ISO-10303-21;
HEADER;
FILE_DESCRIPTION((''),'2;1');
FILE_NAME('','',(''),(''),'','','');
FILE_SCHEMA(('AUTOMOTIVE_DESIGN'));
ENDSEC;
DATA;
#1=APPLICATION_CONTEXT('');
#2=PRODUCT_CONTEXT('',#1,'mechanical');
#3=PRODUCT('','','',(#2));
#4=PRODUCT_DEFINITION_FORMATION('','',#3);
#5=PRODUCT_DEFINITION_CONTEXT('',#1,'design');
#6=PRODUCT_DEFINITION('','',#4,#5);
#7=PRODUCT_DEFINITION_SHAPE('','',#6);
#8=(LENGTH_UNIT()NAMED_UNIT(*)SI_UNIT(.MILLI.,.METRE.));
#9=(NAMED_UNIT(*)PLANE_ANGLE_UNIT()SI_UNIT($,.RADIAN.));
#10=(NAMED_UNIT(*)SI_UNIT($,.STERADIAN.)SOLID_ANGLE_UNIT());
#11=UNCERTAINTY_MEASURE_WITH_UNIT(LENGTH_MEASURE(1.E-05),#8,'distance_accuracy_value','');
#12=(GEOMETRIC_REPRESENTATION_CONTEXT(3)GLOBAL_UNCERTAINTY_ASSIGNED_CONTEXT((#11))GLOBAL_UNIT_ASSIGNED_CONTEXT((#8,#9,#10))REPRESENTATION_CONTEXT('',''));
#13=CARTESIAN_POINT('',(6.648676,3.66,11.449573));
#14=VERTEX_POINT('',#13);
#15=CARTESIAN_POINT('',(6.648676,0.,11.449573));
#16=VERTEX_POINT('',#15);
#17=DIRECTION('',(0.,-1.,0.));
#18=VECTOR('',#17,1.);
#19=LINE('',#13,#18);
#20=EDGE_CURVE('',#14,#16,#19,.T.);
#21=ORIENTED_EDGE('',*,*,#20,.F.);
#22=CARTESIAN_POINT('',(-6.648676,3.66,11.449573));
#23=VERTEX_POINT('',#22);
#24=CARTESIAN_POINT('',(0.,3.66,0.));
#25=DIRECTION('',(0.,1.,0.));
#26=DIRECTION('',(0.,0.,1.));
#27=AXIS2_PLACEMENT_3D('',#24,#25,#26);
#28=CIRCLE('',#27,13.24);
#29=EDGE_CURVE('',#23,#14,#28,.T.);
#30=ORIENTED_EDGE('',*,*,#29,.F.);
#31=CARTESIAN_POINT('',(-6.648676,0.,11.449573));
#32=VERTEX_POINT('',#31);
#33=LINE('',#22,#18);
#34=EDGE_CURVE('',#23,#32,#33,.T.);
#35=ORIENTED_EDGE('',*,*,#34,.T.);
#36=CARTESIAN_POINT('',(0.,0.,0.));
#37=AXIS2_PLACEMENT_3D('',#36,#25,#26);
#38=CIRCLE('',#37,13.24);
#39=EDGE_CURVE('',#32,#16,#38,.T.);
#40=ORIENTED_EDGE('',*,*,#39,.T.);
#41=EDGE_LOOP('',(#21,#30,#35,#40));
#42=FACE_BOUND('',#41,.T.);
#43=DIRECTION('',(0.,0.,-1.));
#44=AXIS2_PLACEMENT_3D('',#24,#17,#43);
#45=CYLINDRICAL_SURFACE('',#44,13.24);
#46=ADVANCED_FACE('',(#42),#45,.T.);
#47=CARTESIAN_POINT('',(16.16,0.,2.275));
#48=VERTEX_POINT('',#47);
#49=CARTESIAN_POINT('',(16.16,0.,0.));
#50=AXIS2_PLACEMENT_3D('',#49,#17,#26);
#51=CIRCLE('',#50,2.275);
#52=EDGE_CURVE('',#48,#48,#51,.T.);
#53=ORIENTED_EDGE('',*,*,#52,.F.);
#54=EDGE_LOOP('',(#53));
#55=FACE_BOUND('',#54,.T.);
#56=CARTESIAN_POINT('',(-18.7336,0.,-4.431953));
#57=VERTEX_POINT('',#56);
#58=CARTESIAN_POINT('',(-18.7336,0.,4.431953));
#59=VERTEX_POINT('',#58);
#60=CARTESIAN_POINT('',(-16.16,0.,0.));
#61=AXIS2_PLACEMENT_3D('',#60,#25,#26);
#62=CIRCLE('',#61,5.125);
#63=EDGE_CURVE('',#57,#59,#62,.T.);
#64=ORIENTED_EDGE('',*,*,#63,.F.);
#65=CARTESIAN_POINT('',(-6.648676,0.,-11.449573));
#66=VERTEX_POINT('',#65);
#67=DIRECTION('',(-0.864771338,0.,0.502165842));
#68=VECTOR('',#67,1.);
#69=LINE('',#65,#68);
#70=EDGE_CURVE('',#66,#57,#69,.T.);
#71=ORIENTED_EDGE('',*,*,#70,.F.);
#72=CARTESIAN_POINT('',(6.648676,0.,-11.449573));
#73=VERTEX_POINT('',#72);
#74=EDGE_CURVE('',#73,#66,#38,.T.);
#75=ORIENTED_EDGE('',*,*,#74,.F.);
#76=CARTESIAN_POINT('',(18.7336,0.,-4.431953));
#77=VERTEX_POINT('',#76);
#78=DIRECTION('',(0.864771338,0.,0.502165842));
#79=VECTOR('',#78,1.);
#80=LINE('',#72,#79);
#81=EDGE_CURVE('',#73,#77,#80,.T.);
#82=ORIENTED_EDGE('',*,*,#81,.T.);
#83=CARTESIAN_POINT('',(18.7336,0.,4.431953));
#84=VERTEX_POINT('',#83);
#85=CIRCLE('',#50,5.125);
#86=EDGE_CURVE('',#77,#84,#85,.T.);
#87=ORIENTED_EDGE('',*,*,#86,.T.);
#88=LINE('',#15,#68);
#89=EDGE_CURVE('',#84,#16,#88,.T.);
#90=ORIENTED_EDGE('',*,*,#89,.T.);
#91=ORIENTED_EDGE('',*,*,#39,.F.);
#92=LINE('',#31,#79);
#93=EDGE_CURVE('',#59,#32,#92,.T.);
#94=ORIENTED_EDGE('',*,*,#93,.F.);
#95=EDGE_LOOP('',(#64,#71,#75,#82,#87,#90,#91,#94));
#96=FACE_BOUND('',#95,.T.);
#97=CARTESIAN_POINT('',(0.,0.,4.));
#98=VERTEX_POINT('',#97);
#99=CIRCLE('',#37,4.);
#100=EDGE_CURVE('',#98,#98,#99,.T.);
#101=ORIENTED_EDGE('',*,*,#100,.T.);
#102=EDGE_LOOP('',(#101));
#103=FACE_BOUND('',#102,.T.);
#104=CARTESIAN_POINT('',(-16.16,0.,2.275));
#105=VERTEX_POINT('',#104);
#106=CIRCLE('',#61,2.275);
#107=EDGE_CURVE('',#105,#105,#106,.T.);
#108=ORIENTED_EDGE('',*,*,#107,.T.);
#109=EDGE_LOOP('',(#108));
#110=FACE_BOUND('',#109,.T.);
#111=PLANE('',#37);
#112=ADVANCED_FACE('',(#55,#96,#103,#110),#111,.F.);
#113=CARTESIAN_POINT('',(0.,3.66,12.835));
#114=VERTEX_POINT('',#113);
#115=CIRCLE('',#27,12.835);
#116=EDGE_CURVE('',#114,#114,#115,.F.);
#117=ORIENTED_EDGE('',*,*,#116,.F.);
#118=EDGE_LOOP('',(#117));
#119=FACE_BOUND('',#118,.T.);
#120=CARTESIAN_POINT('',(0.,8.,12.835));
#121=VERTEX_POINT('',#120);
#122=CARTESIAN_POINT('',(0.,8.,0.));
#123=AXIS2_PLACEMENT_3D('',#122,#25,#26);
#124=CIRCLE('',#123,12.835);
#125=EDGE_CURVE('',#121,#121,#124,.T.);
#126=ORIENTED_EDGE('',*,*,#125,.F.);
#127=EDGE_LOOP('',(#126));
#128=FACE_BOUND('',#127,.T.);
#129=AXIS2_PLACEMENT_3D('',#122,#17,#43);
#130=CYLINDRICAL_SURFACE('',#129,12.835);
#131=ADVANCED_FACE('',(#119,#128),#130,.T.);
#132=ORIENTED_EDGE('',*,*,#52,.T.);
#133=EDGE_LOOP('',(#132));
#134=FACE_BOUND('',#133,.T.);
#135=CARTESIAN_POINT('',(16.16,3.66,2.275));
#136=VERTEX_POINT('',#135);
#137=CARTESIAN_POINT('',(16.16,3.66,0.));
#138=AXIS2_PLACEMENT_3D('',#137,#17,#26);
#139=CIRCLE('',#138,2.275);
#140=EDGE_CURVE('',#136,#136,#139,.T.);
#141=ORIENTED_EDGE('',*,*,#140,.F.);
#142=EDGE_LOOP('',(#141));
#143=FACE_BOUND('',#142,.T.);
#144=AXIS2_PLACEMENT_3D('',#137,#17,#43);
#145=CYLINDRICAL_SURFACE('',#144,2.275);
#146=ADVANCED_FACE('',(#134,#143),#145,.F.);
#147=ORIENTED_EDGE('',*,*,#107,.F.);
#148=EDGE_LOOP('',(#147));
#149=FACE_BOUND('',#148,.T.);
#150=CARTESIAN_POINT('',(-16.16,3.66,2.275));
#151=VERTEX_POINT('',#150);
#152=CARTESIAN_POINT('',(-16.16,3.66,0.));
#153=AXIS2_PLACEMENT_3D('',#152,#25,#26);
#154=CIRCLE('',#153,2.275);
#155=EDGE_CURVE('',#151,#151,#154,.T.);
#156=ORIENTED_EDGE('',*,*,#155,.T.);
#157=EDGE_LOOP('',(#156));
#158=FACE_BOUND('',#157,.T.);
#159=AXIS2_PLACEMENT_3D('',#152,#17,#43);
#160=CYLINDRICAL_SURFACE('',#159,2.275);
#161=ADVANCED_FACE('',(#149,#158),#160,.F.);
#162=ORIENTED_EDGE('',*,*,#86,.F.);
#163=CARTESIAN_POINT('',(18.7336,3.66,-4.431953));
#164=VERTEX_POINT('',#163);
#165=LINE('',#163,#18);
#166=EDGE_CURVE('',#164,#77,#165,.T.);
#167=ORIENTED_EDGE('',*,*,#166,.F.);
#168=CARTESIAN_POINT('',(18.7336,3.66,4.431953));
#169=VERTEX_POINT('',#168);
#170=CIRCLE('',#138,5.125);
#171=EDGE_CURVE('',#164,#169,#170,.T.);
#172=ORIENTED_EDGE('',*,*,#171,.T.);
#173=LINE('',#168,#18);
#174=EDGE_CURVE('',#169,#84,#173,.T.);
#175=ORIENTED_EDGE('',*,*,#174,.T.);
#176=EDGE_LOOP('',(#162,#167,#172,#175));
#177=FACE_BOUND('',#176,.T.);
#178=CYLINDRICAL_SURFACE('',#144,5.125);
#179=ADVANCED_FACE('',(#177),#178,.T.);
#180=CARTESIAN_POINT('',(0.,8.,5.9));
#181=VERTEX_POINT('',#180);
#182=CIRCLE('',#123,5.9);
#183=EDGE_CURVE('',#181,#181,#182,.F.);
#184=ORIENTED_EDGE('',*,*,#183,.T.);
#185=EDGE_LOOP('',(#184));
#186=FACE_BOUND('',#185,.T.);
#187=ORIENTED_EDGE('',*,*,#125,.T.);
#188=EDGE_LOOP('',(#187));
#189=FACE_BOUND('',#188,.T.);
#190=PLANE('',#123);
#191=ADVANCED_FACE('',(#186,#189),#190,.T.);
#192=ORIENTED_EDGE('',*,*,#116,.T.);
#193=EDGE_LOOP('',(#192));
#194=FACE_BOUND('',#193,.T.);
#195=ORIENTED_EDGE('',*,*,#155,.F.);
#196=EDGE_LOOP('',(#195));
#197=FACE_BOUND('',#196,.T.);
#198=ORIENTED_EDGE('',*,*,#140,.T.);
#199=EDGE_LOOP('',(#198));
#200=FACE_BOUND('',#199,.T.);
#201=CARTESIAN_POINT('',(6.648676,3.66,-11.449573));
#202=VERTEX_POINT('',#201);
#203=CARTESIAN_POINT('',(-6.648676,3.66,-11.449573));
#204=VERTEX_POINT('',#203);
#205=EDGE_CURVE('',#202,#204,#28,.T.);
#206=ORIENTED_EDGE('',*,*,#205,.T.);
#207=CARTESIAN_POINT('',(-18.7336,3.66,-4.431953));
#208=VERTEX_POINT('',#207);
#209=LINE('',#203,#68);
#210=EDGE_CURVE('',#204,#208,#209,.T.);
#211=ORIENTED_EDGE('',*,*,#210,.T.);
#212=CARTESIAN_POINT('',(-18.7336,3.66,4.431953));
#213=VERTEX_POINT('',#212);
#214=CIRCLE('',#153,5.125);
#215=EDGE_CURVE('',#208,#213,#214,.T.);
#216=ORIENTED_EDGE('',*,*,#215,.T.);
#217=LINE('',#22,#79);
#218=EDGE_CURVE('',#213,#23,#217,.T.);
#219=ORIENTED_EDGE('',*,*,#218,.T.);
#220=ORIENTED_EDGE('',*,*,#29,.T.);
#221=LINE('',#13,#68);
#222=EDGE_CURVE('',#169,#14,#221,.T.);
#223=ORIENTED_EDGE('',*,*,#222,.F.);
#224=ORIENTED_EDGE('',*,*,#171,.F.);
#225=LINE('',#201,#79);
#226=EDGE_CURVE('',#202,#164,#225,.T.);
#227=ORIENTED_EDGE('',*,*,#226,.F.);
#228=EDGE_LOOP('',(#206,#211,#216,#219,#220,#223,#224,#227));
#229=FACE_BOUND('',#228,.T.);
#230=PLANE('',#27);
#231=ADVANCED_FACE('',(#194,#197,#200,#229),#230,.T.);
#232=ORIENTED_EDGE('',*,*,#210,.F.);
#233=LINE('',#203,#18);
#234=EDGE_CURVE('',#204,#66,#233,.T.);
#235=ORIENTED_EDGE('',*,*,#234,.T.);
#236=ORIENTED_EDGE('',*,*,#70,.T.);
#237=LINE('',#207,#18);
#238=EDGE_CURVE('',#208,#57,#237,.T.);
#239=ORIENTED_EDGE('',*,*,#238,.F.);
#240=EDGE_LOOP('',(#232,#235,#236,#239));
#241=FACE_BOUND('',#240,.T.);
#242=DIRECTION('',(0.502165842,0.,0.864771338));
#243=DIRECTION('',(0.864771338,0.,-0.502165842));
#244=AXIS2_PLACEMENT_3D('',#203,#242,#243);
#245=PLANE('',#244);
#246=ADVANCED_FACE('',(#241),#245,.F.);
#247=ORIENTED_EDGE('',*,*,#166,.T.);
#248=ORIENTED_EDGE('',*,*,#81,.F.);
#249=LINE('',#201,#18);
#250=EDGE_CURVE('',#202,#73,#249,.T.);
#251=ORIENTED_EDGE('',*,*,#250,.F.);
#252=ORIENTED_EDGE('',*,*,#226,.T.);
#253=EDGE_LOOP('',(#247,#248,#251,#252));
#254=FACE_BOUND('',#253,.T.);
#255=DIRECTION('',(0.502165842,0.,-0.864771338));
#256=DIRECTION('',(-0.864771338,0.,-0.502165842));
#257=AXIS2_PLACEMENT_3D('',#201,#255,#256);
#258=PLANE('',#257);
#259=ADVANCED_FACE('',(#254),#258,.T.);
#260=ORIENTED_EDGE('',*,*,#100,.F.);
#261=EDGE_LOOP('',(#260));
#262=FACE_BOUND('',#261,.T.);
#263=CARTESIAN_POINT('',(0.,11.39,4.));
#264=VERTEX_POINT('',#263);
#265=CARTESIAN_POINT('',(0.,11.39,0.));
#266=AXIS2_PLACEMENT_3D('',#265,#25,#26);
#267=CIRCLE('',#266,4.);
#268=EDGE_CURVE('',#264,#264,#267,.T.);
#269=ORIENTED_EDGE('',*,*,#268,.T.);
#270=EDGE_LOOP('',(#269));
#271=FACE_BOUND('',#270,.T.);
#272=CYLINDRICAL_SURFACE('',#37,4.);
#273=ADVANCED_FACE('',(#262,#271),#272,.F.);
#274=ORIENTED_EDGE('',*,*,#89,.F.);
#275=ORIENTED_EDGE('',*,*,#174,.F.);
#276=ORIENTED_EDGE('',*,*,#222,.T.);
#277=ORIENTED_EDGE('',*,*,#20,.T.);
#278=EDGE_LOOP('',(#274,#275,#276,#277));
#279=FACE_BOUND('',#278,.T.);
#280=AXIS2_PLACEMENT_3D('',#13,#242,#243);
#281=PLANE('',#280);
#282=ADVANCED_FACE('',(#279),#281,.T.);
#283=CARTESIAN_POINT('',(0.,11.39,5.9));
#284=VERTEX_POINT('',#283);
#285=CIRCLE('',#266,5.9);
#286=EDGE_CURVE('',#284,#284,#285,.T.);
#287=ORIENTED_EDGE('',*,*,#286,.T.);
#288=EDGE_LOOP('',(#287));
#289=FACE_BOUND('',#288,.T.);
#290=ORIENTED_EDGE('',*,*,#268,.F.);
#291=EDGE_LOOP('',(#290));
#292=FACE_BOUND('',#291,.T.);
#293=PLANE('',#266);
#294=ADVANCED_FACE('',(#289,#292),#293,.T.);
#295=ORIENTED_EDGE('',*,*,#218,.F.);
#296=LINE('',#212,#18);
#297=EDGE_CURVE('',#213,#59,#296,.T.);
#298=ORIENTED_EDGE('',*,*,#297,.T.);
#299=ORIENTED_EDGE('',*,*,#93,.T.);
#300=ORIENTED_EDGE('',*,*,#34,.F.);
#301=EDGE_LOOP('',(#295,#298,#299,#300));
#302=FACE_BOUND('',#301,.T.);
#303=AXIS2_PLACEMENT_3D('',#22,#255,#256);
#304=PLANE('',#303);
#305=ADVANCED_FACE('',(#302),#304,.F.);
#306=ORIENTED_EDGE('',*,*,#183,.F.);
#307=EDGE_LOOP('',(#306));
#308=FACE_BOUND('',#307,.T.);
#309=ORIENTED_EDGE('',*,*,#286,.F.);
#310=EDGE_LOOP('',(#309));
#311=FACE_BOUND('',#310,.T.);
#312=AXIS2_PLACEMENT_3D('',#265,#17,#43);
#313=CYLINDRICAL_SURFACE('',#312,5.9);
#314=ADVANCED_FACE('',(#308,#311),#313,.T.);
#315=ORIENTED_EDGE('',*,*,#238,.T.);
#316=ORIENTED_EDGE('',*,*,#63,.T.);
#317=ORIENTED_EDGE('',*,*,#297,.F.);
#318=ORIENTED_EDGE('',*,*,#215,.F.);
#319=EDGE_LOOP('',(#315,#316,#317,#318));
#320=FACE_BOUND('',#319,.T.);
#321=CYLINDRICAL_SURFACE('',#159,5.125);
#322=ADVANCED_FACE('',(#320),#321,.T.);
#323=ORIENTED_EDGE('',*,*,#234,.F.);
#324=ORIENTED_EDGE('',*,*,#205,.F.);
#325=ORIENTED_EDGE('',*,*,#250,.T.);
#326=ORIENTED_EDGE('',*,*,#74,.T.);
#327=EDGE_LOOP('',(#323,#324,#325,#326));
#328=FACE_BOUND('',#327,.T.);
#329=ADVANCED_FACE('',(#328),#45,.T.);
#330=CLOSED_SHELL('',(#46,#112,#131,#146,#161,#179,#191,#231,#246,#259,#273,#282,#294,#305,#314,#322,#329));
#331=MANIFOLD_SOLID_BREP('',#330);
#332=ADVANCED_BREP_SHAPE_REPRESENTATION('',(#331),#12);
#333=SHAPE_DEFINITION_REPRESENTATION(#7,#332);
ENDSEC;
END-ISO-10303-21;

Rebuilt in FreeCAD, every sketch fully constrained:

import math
import FreeCAD as App
import Part
import Sketcher

V = App.Vector

doc = App.newDocument("Part")
body = doc.addObject("PartDesign::Body", "Body")

# Sketch on XZ plane
sketch1 = body.newObject("Sketcher::SketchObject", "Sketch")
sketch1.AttachmentSupport = (doc.getObject("XZ_Plane"), [""])
sketch1.MapMode = "FlatFace"
sketch1.addGeometry(Part.LineSegment(V(-6.648676, -11.449573, 0), V(-18.7336, -4.431953, 0)), False)
sketch1.addGeometry(Part.ArcOfCircle(Part.Circle(V(-16.16, 0, 0), V(0, 0, 1), 5.125), math.radians(120.143395), math.radians(239.856605)), False)
sketch1.addGeometry(Part.LineSegment(V(-18.7336, 4.431953, 0), V(-6.648676, 11.449573, 0)), False)
sketch1.addGeometry(Part.ArcOfCircle(Part.Circle(V(0, 0, 0), V(0, 0, 1), 13.24), math.radians(90), math.radians(120.143395)), False)
sketch1.addGeometry(Part.LineSegment(V(0, 13.24, 0), V(0, -13.24, 0)), False)
sketch1.addGeometry(Part.ArcOfCircle(Part.Circle(V(0, 0, 0), V(0, 0, 1), 13.24), math.radians(-120.143395), math.radians(-90)), False)
sketch1.addGeometry(Part.Circle(V(-16.16, 0, 0), V(0, 0, 1), 2.275), False)
sketch1.addConstraint(Sketcher.Constraint("Tangent", 0, 2, 1, 2))
sketch1.addConstraint(Sketcher.Constraint("Tangent", 1, 1, 2, 1))
sketch1.addConstraint(Sketcher.Constraint("Tangent", 2, 2, 3, 2))
sketch1.addConstraint(Sketcher.Constraint("Coincident", 3, 1, 4, 1))
sketch1.addConstraint(Sketcher.Constraint("Coincident", 4, 2, 5, 2))
sketch1.addConstraint(Sketcher.Constraint("Tangent", 5, 1, 0, 1))
sketch1.addConstraint(Sketcher.Constraint("Vertical", 4))
sketch1.addConstraint(Sketcher.Constraint("Coincident", 3, 3, -1, 1))
sketch1.addConstraint(Sketcher.Constraint("Coincident", 5, 3, -1, 1))
sketch1.addConstraint(Sketcher.Constraint("Coincident", 6, 3, 1, 3))
sketch1.addConstraint(Sketcher.Constraint("Equal", 3, 5))
sketch1.addConstraint(Sketcher.Constraint("PointOnObject", 1, 3, -1))
sketch1.addConstraint(Sketcher.Constraint("PointOnObject", 3, 1, -2))
sketch1.addConstraint(Sketcher.Constraint("Diameter", 6, 4.55))
sketch1.addConstraint(Sketcher.Constraint("Radius", 3, 13.24))
sketch1.addConstraint(Sketcher.Constraint("Radius", 1, 5.125))
sketch1.addConstraint(Sketcher.Constraint("DistanceX", 1, 3, -1, 1, 16.16))
pad1 = body.newObject("PartDesign::Pad", "Pad")
pad1.Profile = sketch1
pad1.Length = 3.66
pad1.Reversed = True
doc.recompute()

mirrored = body.newObject("PartDesign::Mirrored", "Mirrored")
mirrored.Originals = [pad1]
mirrored.MirrorPlane = (doc.getObject("YZ_Plane"), [""])
body.Tip = mirrored

# Sketch on XZ plane
sketch2 = body.newObject("Sketcher::SketchObject", "Sketch001")
sketch2.AttachmentSupport = (doc.getObject("XZ_Plane"), [""])
sketch2.MapMode = "FlatFace"
sketch2.addGeometry(Part.Circle(V(0, 0, 0), V(0, 0, 1), 12.835), False)
sketch2.addConstraint(Sketcher.Constraint("Coincident", 0, 3, -1, 1))
sketch2.addConstraint(Sketcher.Constraint("Diameter", 0, 25.67))
pad2 = body.newObject("PartDesign::Pad", "Pad001")
pad2.Profile = sketch2
pad2.Length = 8
pad2.Reversed = True

# Sketch on XZ plane
sketch3 = body.newObject("Sketcher::SketchObject", "Sketch002")
sketch3.AttachmentSupport = (doc.getObject("XZ_Plane"), [""])
sketch3.MapMode = "FlatFace"
sketch3.addGeometry(Part.Circle(V(0, 0, 0), V(0, 0, 1), 5.9), False)
sketch3.addConstraint(Sketcher.Constraint("Coincident", 0, 3, -1, 1))
sketch3.addConstraint(Sketcher.Constraint("Diameter", 0, 11.8))
pad3 = body.newObject("PartDesign::Pad", "Pad002")
pad3.Profile = sketch3
pad3.Length = 11.39
pad3.Reversed = True

# Sketch on XZ plane
sketch4 = body.newObject("Sketcher::SketchObject", "Sketch003")
sketch4.AttachmentSupport = (doc.getObject("XZ_Plane"), [""])
sketch4.MapMode = "FlatFace"
sketch4.AttachmentOffset = App.Placement(V(0, 0, -11.39), App.Rotation())
sketch4.addGeometry(Part.Circle(V(0, 0, 0), V(0, 0, 1), 4), False)
sketch4.addConstraint(Sketcher.Constraint("Coincident", 0, 3, -1, 1))
sketch4.addConstraint(Sketcher.Constraint("Diameter", 0, 8.0))
pocket1 = body.newObject("PartDesign::Pocket", "Pocket")
pocket1.Profile = sketch4
pocket1.Type = "ThroughAll"
pocket1.Reversed = True

doc.recompute()
